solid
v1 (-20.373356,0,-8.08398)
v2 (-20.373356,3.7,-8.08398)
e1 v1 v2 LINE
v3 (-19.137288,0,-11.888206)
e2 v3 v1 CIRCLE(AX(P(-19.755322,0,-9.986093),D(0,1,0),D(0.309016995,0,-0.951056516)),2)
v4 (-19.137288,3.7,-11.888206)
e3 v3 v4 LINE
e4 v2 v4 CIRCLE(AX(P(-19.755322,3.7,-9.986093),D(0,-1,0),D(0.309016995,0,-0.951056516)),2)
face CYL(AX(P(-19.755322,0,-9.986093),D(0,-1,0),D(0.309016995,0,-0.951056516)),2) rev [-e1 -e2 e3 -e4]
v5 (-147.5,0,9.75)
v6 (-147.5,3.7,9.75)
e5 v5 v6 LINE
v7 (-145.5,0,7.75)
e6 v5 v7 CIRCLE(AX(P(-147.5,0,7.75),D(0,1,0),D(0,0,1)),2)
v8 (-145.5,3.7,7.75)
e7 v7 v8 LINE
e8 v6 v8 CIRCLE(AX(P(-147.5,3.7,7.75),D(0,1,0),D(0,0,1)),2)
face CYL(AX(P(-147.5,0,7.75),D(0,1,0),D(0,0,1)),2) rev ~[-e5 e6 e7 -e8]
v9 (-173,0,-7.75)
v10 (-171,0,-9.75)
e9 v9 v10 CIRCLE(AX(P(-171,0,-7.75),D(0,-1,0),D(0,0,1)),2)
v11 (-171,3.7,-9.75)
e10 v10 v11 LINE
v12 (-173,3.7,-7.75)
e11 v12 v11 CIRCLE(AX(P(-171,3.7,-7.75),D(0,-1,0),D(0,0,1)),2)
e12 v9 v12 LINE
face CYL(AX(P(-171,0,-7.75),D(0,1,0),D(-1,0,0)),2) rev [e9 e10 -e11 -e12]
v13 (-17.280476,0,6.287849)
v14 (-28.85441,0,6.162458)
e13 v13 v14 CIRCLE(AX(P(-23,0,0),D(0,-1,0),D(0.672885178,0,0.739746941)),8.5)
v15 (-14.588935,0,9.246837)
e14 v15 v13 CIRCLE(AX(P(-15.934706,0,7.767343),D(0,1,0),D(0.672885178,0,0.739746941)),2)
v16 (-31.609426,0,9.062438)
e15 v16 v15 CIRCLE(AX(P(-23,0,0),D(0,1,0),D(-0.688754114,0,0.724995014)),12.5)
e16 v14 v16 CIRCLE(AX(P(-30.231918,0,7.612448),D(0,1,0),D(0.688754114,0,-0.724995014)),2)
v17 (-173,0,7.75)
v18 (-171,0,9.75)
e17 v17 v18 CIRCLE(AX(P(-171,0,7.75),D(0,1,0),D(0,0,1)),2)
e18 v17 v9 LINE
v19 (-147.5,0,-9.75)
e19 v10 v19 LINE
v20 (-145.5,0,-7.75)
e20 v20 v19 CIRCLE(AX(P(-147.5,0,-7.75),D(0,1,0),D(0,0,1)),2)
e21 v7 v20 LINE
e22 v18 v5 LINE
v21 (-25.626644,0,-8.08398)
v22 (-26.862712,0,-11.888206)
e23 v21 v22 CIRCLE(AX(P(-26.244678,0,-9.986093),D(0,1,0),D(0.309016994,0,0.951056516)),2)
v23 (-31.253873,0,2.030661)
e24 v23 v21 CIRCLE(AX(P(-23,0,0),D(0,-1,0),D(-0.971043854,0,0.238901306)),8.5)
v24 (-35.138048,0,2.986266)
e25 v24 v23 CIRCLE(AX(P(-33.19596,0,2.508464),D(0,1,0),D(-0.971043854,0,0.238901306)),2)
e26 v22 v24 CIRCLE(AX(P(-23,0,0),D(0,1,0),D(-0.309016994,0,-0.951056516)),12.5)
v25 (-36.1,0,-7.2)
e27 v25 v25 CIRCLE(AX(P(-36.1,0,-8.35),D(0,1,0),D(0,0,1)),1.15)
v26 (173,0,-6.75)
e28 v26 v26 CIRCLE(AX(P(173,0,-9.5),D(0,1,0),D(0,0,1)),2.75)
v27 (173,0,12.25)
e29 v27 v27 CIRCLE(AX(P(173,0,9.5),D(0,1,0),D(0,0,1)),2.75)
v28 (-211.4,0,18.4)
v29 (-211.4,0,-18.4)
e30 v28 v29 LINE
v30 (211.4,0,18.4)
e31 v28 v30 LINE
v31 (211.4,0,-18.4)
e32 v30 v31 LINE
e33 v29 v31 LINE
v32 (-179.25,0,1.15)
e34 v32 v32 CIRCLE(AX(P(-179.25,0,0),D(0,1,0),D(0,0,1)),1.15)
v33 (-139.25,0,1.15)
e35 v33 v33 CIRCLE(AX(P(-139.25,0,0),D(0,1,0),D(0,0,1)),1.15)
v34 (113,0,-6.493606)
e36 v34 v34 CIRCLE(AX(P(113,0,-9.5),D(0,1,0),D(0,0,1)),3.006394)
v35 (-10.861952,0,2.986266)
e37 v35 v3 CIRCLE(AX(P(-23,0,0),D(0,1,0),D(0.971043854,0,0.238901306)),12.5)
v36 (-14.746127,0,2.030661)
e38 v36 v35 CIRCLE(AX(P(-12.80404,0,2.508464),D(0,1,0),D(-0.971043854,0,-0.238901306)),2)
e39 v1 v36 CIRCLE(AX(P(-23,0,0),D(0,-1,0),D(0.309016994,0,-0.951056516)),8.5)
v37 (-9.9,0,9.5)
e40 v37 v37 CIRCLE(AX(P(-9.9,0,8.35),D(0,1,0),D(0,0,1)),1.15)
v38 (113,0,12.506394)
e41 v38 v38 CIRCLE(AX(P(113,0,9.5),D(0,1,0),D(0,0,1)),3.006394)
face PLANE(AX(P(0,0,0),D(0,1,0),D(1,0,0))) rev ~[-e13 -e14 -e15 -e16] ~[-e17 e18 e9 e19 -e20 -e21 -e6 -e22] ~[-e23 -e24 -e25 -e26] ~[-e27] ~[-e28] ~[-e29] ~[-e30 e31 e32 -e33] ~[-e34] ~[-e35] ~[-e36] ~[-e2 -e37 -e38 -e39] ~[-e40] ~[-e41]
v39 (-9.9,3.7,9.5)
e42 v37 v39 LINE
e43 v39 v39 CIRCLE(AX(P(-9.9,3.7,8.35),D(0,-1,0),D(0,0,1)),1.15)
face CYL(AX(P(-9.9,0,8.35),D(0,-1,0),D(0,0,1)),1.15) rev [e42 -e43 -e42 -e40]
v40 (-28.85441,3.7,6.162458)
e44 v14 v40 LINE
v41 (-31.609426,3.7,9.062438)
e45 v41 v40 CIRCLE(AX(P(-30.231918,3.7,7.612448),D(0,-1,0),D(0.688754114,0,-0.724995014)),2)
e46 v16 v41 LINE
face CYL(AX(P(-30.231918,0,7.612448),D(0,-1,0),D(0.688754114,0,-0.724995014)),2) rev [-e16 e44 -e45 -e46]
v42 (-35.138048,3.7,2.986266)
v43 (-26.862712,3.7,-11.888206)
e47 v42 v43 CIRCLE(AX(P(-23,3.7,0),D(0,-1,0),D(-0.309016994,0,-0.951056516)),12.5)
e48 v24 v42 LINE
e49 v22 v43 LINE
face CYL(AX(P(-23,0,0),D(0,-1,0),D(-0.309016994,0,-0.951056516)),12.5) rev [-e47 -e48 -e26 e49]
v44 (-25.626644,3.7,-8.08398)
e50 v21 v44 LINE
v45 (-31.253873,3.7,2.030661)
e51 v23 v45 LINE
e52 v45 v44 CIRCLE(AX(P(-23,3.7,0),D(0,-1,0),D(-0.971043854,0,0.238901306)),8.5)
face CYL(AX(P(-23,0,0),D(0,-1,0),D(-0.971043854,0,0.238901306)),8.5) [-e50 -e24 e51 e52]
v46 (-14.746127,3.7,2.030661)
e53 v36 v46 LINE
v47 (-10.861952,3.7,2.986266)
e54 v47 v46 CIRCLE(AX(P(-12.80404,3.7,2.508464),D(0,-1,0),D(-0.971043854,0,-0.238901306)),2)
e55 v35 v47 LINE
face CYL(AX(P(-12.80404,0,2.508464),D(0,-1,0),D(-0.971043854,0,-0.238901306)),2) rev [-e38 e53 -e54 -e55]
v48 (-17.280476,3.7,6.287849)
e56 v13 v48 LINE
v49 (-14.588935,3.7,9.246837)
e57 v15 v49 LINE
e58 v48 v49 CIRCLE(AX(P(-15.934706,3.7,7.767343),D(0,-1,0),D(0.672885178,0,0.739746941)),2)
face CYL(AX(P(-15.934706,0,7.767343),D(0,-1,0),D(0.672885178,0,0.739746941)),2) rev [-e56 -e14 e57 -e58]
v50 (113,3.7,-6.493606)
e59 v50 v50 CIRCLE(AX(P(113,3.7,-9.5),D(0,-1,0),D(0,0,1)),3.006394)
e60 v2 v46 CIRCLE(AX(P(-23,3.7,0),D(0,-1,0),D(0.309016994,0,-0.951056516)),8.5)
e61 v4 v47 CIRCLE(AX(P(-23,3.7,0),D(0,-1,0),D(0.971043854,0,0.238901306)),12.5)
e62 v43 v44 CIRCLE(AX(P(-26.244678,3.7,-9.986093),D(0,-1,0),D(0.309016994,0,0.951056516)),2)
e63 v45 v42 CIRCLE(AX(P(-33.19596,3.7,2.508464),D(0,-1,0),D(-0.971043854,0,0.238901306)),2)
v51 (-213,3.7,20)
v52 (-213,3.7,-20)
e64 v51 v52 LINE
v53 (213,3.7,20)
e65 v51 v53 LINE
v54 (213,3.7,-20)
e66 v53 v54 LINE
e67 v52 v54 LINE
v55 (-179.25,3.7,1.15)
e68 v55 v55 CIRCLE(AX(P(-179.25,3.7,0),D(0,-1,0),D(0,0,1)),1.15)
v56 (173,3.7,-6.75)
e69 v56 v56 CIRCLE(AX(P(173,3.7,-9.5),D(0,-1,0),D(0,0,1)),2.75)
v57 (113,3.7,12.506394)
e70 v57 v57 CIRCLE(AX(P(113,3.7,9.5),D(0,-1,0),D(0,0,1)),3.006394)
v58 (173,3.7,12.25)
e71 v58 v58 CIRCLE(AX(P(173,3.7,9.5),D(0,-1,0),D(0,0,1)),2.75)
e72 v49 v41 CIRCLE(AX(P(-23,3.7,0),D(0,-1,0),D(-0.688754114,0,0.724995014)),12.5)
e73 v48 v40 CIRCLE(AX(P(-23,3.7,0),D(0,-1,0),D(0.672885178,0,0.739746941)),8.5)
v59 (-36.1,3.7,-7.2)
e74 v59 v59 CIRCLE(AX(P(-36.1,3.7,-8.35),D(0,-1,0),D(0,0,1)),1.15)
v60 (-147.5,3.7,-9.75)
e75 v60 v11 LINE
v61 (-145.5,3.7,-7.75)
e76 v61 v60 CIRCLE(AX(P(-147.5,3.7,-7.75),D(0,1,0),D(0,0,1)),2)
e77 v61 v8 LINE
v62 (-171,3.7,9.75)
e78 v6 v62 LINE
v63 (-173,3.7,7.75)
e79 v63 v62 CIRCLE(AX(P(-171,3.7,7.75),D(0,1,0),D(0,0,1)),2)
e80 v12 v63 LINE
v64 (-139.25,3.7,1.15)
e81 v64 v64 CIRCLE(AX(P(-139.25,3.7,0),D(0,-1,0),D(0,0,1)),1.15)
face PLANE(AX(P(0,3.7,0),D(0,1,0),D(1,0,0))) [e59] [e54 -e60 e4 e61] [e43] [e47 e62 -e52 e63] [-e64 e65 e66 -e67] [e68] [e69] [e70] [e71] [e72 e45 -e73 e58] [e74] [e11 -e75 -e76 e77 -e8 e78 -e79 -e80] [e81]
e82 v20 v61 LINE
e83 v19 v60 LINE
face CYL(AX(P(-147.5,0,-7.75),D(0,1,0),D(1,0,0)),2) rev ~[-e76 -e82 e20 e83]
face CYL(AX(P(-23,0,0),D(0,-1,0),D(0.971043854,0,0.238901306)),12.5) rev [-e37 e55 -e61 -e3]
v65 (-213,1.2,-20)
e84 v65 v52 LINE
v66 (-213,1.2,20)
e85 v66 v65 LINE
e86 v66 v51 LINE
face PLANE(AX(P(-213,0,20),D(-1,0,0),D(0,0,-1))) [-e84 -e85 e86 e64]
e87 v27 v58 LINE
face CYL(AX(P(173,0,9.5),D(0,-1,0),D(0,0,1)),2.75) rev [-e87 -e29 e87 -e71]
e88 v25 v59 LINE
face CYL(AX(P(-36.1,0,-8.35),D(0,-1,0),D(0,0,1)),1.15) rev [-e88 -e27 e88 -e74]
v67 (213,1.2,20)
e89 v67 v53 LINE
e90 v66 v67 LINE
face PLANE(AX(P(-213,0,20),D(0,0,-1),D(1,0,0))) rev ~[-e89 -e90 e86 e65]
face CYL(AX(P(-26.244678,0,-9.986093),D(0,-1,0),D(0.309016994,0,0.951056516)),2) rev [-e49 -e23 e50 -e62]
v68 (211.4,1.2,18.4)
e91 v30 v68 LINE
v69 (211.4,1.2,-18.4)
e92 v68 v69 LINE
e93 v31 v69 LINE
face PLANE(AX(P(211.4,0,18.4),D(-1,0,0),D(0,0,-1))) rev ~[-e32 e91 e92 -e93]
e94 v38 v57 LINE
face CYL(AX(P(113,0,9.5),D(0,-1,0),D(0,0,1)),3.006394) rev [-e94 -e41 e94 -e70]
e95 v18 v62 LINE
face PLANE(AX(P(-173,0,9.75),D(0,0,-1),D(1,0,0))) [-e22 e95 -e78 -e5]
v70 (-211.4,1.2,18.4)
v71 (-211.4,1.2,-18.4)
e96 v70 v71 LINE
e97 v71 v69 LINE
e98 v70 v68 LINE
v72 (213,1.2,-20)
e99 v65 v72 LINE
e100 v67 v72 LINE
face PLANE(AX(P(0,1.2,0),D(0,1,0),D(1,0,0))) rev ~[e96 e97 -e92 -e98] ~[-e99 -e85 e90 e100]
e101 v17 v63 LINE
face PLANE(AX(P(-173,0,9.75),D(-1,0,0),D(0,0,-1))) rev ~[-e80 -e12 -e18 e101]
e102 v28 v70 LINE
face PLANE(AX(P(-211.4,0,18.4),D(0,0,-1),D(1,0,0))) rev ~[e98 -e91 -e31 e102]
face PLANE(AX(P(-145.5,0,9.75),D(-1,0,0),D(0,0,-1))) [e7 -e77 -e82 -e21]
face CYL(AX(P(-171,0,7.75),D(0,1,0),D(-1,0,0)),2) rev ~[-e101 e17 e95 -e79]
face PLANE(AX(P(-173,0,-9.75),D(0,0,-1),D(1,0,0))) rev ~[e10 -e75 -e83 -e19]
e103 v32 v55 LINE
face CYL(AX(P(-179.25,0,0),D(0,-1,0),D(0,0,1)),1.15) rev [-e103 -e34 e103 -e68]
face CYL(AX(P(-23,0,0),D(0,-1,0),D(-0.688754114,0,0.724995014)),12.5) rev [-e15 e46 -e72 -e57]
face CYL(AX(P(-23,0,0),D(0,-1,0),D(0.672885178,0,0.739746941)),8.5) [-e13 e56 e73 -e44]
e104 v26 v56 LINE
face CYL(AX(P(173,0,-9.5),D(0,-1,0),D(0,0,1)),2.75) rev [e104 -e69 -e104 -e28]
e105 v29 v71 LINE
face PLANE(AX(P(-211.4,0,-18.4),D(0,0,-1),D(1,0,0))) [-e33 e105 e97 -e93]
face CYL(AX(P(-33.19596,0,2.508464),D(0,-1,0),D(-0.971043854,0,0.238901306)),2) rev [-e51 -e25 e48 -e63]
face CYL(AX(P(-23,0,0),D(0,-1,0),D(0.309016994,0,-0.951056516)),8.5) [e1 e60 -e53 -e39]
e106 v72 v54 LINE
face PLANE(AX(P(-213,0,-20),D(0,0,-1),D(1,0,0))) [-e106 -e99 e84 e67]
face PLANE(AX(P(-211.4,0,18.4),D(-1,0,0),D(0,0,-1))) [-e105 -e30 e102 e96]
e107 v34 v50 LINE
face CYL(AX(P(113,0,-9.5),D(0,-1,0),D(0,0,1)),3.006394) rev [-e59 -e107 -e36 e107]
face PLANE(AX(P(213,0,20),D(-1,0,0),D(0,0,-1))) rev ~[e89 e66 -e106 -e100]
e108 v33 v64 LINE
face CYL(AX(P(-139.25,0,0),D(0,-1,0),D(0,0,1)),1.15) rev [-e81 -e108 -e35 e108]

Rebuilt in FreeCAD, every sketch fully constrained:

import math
import FreeCAD as App
import Part
import Sketcher

V = App.Vector


def edges_at(feature, points):
    """Names of the edges that pass closest to the given points."""
    edges = feature.Shape.Edges
    near = lambda p: min(range(len(edges)), key=lambda i: edges[i].distToShape(Part.Vertex(*p))[0])
    return sorted({f"Edge{near(p) + 1}" for p in points})


def add_polygon(sketch, points):
    """Adds a closed chain of lines whose ends are joined by coincident constraints."""
    first, n = sketch.GeometryCount, len(points)
    for a, b in zip(points, points[1:] + points[:1]):
        sketch.addGeometry(Part.LineSegment(App.Vector(*a, 0), App.Vector(*b, 0)), False)
    for i in range(n):
        sketch.addConstraint(Sketcher.Constraint("Coincident", first + i, 2, first + (i + 1) % n, 1))

doc = App.newDocument("Part")
body = doc.addObject("PartDesign::Body", "Body")

# Sketch on XZ plane
sketch1 = body.newObject("Sketcher::SketchObject", "Sketch")
sketch1.AttachmentSupport = (doc.getObject("XZ_Plane"), [""])
sketch1.MapMode = "FlatFace"
add_polygon(sketch1, [(-213, -20), (-213, 20), (213, 20), (213, -20)])  # lines 0-3
sketch1.addConstraint([
    Sketcher.Constraint("Vertical", 0),
    Sketcher.Constraint("Horizontal", 1),
    Sketcher.Constraint("Vertical", 2),
    Sketcher.Constraint("Horizontal", 3),
    Sketcher.Constraint("Symmetric", 0, 2, 2, 2, -1, 1),
    Sketcher.Constraint("DistanceX", 1, 1, 1, 2, 426.0),
    Sketcher.Constraint("DistanceY", 0, 1, 0, 2, 40.0),
])
pad1 = body.newObject("PartDesign::Pad", "Pad")
pad1.Profile = sketch1
pad1.Length = 3.7
pad1.Reversed = True

# Sketch on XZ plane
sketch2 = body.newObject("Sketcher::SketchObject", "Sketch001")
sketch2.AttachmentSupport = (doc.getObject("XZ_Plane"), [""])
sketch2.MapMode = "FlatFace"
add_polygon(sketch2, [(-213, -20), (-213, 20), (213, 20), (213, -20)])  # lines 0-3
add_polygon(sketch2, [(211.4, 18.4), (-211.4, 18.4), (-211.4, -18.4), (211.4, -18.4)])  # lines 4-7
sketch2.addConstraint([
    Sketcher.Constraint("Vertical", 0),
    Sketcher.Constraint("Horizontal", 1),
    Sketcher.Constraint("Vertical", 2),
    Sketcher.Constraint("Horizontal", 3),
    Sketcher.Constraint("Horizontal", 4),
    Sketcher.Constraint("Vertical", 5),
    Sketcher.Constraint("Horizontal", 6),
    Sketcher.Constraint("Vertical", 7),
    Sketcher.Constraint("Symmetric", 0, 2, 2, 2, -1, 1),
    Sketcher.Constraint("Symmetric", 4, 2, 6, 2, -1, 1),
    Sketcher.Constraint("DistanceX", 1, 1, 1, 2, 426.0),
    Sketcher.Constraint("DistanceY", 0, 1, 0, 2, 40.0),
    Sketcher.Constraint("DistanceX", 4, 2, 4, 1, 422.8),
    Sketcher.Constraint("DistanceY", 5, 2, 5, 1, 36.8),
])
pocket1 = body.newObject("PartDesign::Pocket", "Pocket")
pocket1.Profile = sketch2
pocket1.Length = 1.2

# Sketch on XZ plane
sketch3 = body.newObject("Sketcher::SketchObject", "Sketch002")
sketch3.AttachmentSupport = (doc.getObject("XZ_Plane"), [""])
sketch3.MapMode = "FlatFace"
sketch3.addGeometry(Part.Circle(V(173, 9.5, 0), V(0, 0, 1), 2.75), False)  # 0
sketch3.addGeometry(Part.Circle(V(173, -9.5, 0), V(0, 0, 1), 2.75), False)  # 1
sketch3.addGeometry(Part.Circle(V(-179.25, 0, 0), V(0, 0, 1), 1.15), False)  # 2
sketch3.addGeometry(Part.Circle(V(-139.25, 0, 0), V(0, 0, 1), 1.15), False)  # 3
sketch3.addGeometry(Part.Circle(V(113, -9.5, 0), V(0, 0, 1), 3.006394), False)  # 4
sketch3.addGeometry(Part.Circle(V(113, 9.5, 0), V(0, 0, 1), 3.006394), False)  # 5
sketch3.addGeometry(Part.Circle(V(-9.9, 8.35, 0), V(0, 0, 1), 1.15), False)  # 6
sketch3.addGeometry(Part.Circle(V(-36.1, -8.35, 0), V(0, 0, 1), 1.15), False)  # 7
add_polygon(sketch3, [(-173, -9.75), (-173, 9.75), (-145.5, 9.75), (-145.5, -9.75)])  # lines 8-11
sketch3.addGeometry(Part.ArcOfCircle(Part.Circle(V(-23, 0, 0), V(0, 0, 1), 12.5), math.radians(-72), math.radians(13.821704)), False)  # 12
sketch3.addGeometry(Part.ArcOfCircle(Part.Circle(V(-19.755322, -9.986093, 0), V(0, 0, 1), 2), math.radians(108), math.radians(288)), False)  # 13
sketch3.addGeometry(Part.ArcOfCircle(Part.Circle(V(-23, 0, 0), V(0, 0, 1), 8.5), math.radians(-72), math.radians(13.821704)), False)  # 14
sketch3.addGeometry(Part.ArcOfCircle(Part.Circle(V(-12.80404, 2.508464, 0), V(0, 0, 1), 2), math.radians(13.821704), math.radians(193.821704)), False)  # 15
sketch3.addGeometry(Part.ArcOfCircle(Part.Circle(V(-23, 0, 0), V(0, 0, 1), 12.5), math.radians(166.178296), math.radians(252)), False)  # 16
sketch3.addGeometry(Part.ArcOfCircle(Part.Circle(V(-33.19596, 2.508464, 0), V(0, 0, 1), 2), math.radians(-13.821704), math.radians(166.178296)), False)  # 17
sketch3.addGeometry(Part.ArcOfCircle(Part.Circle(V(-23, 0, 0), V(0, 0, 1), 8.5), math.radians(166.178296), math.radians(252)), False)  # 18
sketch3.addGeometry(Part.ArcOfCircle(Part.Circle(V(-26.244678, -9.986093, 0), V(0, 0, 1), 2), math.radians(-108), math.radians(72)), False)  # 19
sketch3.addGeometry(Part.ArcOfCircle(Part.Circle(V(-23, 0, 0), V(0, 0, 1), 12.5), math.radians(47.709863), math.radians(133.531567)), False)  # 20
sketch3.addGeometry(Part.ArcOfCircle(Part.Circle(V(-15.934706, 7.767343, 0), V(0, 0, 1), 2), math.radians(-132.290137), math.radians(47.709863)), False)  # 21
sketch3.addGeometry(Part.ArcOfCircle(Part.Circle(V(-23, 0, 0), V(0, 0, 1), 8.5), math.radians(47.709863), math.radians(133.531567)), False)  # 22
sketch3.addGeometry(Part.ArcOfCircle(Part.Circle(V(-30.231918, 7.612448, 0), V(0, 0, 1), 2), math.radians(133.531567), math.radians(313.531567)), False)  # 23
sketch3.addConstraint([
    Sketcher.Constraint("Tangent", 12, 1, 13, 2),
    Sketcher.Constraint("Tangent", 13, 1, 14, 1),
    Sketcher.Constraint("Tangent", 14, 2, 15, 2),
    Sketcher.Constraint("Tangent", 15, 1, 12, 2),
    Sketcher.Constraint("Tangent", 16, 1, 17, 2),
    Sketcher.Constraint("Tangent", 17, 1, 18, 1),
    Sketcher.Constraint("Tangent", 18, 2, 19, 2),
    Sketcher.Constraint("Tangent", 19, 1, 16, 2),
    Sketcher.Constraint("Tangent", 20, 1, 21, 2),
    Sketcher.Constraint("Tangent", 21, 1, 22, 1),
    Sketcher.Constraint("Tangent", 22, 2, 23, 2),
    Sketcher.Constraint("Tangent", 23, 1, 20, 2),
    Sketcher.Constraint("Vertical", 8),
    Sketcher.Constraint("Horizontal", 9),
    Sketcher.Constraint("Vertical", 10),
    Sketcher.Constraint("Horizontal", 11),
    Sketcher.Constraint("Coincident", 14, 3, 12, 3),
    Sketcher.Constraint("Coincident", 16, 3, 12, 3),
    Sketcher.Constraint("Coincident", 18, 3, 12, 3),
    Sketcher.Constraint("Coincident", 20, 3, 12, 3),
    Sketcher.Constraint("Coincident", 22, 3, 12, 3),
    Sketcher.Constraint("Equal", 0, 1),
    Sketcher.Constraint("Equal", 2, 3),
    Sketcher.Constraint("Equal", 4, 5),
    Sketcher.Constraint("Equal", 3, 6),
    Sketcher.Constraint("Equal", 6, 7),
    Sketcher.Constraint("Equal", 12, 16),
    Sketcher.Constraint("Equal", 15, 17),
    Sketcher.Constraint("Equal", 16, 20),
    Sketcher.Constraint("Equal", 19, 21),
    Sketcher.Constraint("Symmetric", 0, 3, 1, 3, -1),
    Sketcher.Constraint("Symmetric", 4, 3, 5, 3, -1),
    Sketcher.Constraint("PointOnObject", 2, 3, -1),
    Sketcher.Constraint("PointOnObject", 3, 3, -1),
    Sketcher.Constraint("PointOnObject", 12, 3, -1),
    Sketcher.Constraint("Horizontal", 1, 3, 4, 3),
    Sketcher.Constraint("Horizontal", 15, 3, 17, 3),
    Sketcher.Constraint("Horizontal", 13, 3, 19, 3),
    Sketcher.Constraint("Radius", 13, 2.0),
    Sketcher.Constraint("Diameter", 0, 5.5),
    Sketcher.Constraint("Diameter", 2, 2.3),
    Sketcher.Constraint("Radius", 12, 12.5),
    Sketcher.Constraint("DistanceX", 9, 1, 9, 2, 27.5),
    Sketcher.Constraint("DistanceY", 8, 1, 8, 2, 19.5),
    Sketcher.Constraint("DistanceX", -1, 1, 0, 3, 173.0),
    Sketcher.Constraint("DistanceX", -1, 1, 4, 3, 113.0),
    Sketcher.Constraint("DistanceX", 12, 3, -1, 1, 23.0),
    Sketcher.Constraint("DistanceX", 8, 2, -1, 1, 173.0),
    Sketcher.Constraint("DistanceY", 1, 3, 0, 3, 19.0),
    Sketcher.Constraint("DistanceX", 2, 3, 3, 3, 40.0),
    Sketcher.Constraint("DistanceX", 6, 3, -1, 1, 9.9),
    Sketcher.Constraint("DistanceX", 7, 3, -1, 1, 36.1),
    Sketcher.Constraint("DistanceY", 7, 3, 6, 3, 16.7),
    Sketcher.Constraint("DistanceY", 7, 3, 8, 2, 18.1),
    Sketcher.Constraint("Diameter", 4, 6.012788),
    Sketcher.Constraint("DistanceX", 2, 3, -1, 1, 179.25),
    Sketcher.Constraint("DistanceY", -1, 1, 6, 3, 8.35),
    Sketcher.Constraint("DistanceX", 13, 3, -1, 1, 19.755322),
    Sketcher.Constraint("DistanceX", 15, 3, -1, 1, 12.80404),
    Sketcher.Constraint("DistanceX", 23, 3, -1, 1, 30.231918),
    Sketcher.Constraint("DistanceY", -1, 1, 21, 1, 6.287849),
])
pocket2 = body.newObject("PartDesign::Pocket", "Pocket001")
pocket2.Profile = sketch3
pocket2.Length = 6
doc.recompute()

fillet = body.newObject("PartDesign::Fillet", "Fillet")
fillet.Base = (pocket2, edges_at(pocket2, [
    (-173, 1.85, -9.75),
    (-173, 1.85, 9.75),
    (-145.5, 1.85, 9.75),
    (-145.5, 1.85, -9.75),
]))
fillet.Radius = 2

doc.recompute()
